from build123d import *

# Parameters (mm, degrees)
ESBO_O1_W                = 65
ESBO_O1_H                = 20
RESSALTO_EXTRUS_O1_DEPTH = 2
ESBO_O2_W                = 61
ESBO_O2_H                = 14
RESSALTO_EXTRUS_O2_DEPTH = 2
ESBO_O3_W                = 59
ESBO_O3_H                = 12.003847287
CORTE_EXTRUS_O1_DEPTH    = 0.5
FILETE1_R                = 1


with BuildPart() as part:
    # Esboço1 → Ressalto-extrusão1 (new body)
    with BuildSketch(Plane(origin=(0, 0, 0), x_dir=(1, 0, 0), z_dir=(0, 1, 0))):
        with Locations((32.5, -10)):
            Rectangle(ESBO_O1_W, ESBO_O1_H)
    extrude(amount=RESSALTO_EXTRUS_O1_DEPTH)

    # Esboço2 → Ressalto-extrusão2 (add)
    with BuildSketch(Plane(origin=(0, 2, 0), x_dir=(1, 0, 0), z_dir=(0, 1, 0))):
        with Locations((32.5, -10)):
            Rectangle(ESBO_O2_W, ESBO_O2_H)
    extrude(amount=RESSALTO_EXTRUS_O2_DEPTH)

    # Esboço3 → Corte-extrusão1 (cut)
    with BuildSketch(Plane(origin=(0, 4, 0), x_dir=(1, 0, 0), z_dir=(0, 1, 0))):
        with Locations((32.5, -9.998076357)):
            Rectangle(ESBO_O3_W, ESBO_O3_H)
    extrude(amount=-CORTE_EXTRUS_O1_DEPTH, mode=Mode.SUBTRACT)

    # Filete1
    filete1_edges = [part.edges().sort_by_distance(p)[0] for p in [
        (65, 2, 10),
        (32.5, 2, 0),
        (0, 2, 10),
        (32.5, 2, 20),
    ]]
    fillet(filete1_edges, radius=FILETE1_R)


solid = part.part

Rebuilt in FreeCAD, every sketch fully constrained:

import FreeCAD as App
import Part
import Sketcher
from FreeCAD import Vector


def edges_at(feature, points):
    """Names of the edges that pass closest to the given points."""
    edges = feature.Shape.Edges
    near = lambda p: min(range(len(edges)), key=lambda i: edges[i].distToShape(Part.Vertex(*p))[0])
    return sorted({f"Edge{near(p) + 1}" for p in points})

doc = App.newDocument("Part")
body = doc.addObject("PartDesign::Body", "Body")

sketch1 = body.newObject("Sketcher::SketchObject", "Sketch")
sketch1.AttachmentSupport = (doc.getObject("XZ_Plane"), [""])
sketch1.MapMode = "FlatFace"
sketch1.addGeometry([
    Part.LineSegment(Vector(0, 0, 0), Vector(0, 20, 0)),
    Part.LineSegment(Vector(0, 20, 0), Vector(65, 20, 0)),
    Part.LineSegment(Vector(65, 20, 0), Vector(65, 0, 0)),
    Part.LineSegment(Vector(65, 0, 0), Vector(0, 0, 0)),
], False)
sketch1.addConstraint([
    Sketcher.Constraint("Coincident", 0, 2, 1, 1),
    Sketcher.Constraint("Coincident", 1, 2, 2, 1),
    Sketcher.Constraint("Coincident", 2, 2, 3, 1),
    Sketcher.Constraint("Coincident", 3, 2, 0, 1),
    Sketcher.Constraint("Vertical", 0),
    Sketcher.Constraint("Horizontal", 1),
    Sketcher.Constraint("Vertical", 2),
    Sketcher.Constraint("Horizontal", 3),
    Sketcher.Constraint("Coincident", 3, 2, -1, 1),
    Sketcher.Constraint("DistanceX", 1, 1, 1, 2, 65.0),
    Sketcher.Constraint("DistanceY", 0, 1, 0, 2, 20.0),
])
pad1 = body.newObject("PartDesign::Pad", "Pad")
pad1.Profile = sketch1
pad1.Length = 2
pad1.Reversed = True

sketch2 = body.newObject("Sketcher::SketchObject", "Sketch001")
sketch2.AttachmentSupport = (doc.getObject("XZ_Plane"), [""])
sketch2.MapMode = "FlatFace"
sketch2.AttachmentOffset = App.Placement(Vector(0, 0, -2), App.Rotation())
sketch2.addGeometry([
    Part.LineSegment(Vector(2, 3, 0), Vector(2, 17, 0)),
    Part.LineSegment(Vector(2, 17, 0), Vector(63, 17, 0)),
    Part.LineSegment(Vector(63, 17, 0), Vector(63, 3, 0)),
    Part.LineSegment(Vector(63, 3, 0), Vector(2, 3, 0)),
], False)
sketch2.addConstraint([
    Sketcher.Constraint("Coincident", 0, 2, 1, 1),
    Sketcher.Constraint("Coincident", 1, 2, 2, 1),
    Sketcher.Constraint("Coincident", 2, 2, 3, 1),
    Sketcher.Constraint("Coincident", 3, 2, 0, 1),
    Sketcher.Constraint("Vertical", 0),
    Sketcher.Constraint("Horizontal", 1),
    Sketcher.Constraint("Vertical", 2),
    Sketcher.Constraint("Horizontal", 3),
    Sketcher.Constraint("DistanceX", 1, 1, 1, 2, 61.0),
    Sketcher.Constraint("DistanceY", 0, 1, 0, 2, 14.0),
    Sketcher.Constraint("DistanceX", -1, 1, 0, 2, 2.0),
    Sketcher.Constraint("DistanceY", -1, 1, 0, 2, 17.0),
])
pad2 = body.newObject("PartDesign::Pad", "Pad001")
pad2.Profile = sketch2
pad2.Length = 2
pad2.Reversed = True

sketch3 = body.newObject("Sketcher::SketchObject", "Sketch002")
sketch3.AttachmentSupport = (doc.getObject("XZ_Plane"), [""])
sketch3.MapMode = "FlatFace"
sketch3.AttachmentOffset = App.Placement(Vector(0, 0, -4), App.Rotation())
sketch3.addGeometry([
    Part.LineSegment(Vector(3, 4, 0), Vector(3, 16, 0)),
    Part.LineSegment(Vector(3, 16, 0), Vector(62, 16, 0)),
    Part.LineSegment(Vector(62, 16, 0), Vector(62, 4, 0)),
    Part.LineSegment(Vector(62, 4, 0), Vector(3, 4, 0)),
], False)
sketch3.addConstraint([
    Sketcher.Constraint("Coincident", 0, 2, 1, 1),
    Sketcher.Constraint("Coincident", 1, 2, 2, 1),
    Sketcher.Constraint("Coincident", 2, 2, 3, 1),
    Sketcher.Constraint("Coincident", 3, 2, 0, 1),
    Sketcher.Constraint("Vertical", 0),
    Sketcher.Constraint("Horizontal", 1),
    Sketcher.Constraint("Vertical", 2),
    Sketcher.Constraint("Horizontal", 3),
    Sketcher.Constraint("DistanceX", 1, 1, 1, 2, 59.0),
    Sketcher.Constraint("DistanceX", -1, 1, 0, 2, 3.0),
    Sketcher.Constraint("DistanceY", -1, 1, 0, 2, 16.0),
    Sketcher.Constraint("DistanceY", 0, 1, 0, 2, 12.003847),
])
pocket1 = body.newObject("PartDesign::Pocket", "Pocket")
pocket1.Profile = sketch3
pocket1.Length = 0.5
pocket1.Reversed = True
doc.recompute()

fillet = body.newObject("PartDesign::Fillet", "Fillet")
fillet.Base = (pocket1, edges_at(pocket1, [
    (65, 2, 10),
    (32.5, 2, 0),
    (0, 2, 10),
    (32.5, 2, 20),
]))
fillet.Radius = 1

doc.recompute()
